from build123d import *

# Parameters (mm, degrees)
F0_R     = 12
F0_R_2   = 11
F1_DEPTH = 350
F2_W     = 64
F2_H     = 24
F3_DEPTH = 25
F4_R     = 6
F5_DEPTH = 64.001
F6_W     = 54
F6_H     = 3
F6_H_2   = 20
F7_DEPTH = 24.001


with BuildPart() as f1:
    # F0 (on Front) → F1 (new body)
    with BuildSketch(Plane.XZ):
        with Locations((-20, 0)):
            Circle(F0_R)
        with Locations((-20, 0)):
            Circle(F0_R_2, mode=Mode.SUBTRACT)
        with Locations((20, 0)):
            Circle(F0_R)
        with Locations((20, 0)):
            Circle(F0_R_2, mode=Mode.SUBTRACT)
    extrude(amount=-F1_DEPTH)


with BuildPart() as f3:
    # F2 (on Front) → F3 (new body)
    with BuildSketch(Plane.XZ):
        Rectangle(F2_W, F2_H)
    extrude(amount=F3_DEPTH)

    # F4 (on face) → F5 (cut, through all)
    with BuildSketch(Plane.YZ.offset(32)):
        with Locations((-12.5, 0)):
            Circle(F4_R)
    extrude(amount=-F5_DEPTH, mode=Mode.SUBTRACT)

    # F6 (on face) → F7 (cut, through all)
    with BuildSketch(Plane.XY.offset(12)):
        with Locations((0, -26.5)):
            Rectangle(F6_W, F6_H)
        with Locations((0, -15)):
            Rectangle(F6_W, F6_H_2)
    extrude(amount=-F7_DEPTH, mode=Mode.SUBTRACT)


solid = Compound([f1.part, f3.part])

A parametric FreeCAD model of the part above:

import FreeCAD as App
import Part
import Sketcher

V = App.Vector
Q = App.Units.Quantity

doc = App.newDocument("Part")
body = doc.addObject("PartDesign::Body", "Body")
body.AllowCompound = True

# Sketch on XZ plane
sketch1 = body.newObject("Sketcher::SketchObject", "Sketch")
sketch1.AttachmentSupport = (doc.getObject("XZ_Plane"), [""])
sketch1.MapMode = "FlatFace"
sketch1.addGeometry(Part.Circle(V(-20, 0, 0), V(0, 0, 1), 12), False)
sketch1.addGeometry(Part.Circle(V(-20, 0, 0), V(0, 0, 1), 11), False)
sketch1.addGeometry(Part.Circle(V(20, 0, 0), V(0, 0, 1), 12), False)
sketch1.addGeometry(Part.Circle(V(20, 0, 0), V(0, 0, 1), 11), False)
sketch1.addConstraint(Sketcher.Constraint("Coincident", 1, 3, 0, 3))
sketch1.addConstraint(Sketcher.Constraint("Coincident", 3, 3, 2, 3))
sketch1.addConstraint(Sketcher.Constraint("Equal", 0, 2))
sketch1.addConstraint(Sketcher.Constraint("Equal", 1, 3))
sketch1.addConstraint(Sketcher.Constraint("Symmetric", 0, 3, 2, 3, -1, 1))
sketch1.addConstraint(Sketcher.Constraint("PointOnObject", 0, 3, -1))
sketch1.addConstraint(Sketcher.Constraint("Diameter", 0, Q("24 mm")))
sketch1.addConstraint(Sketcher.Constraint("Diameter", 1, Q("22 mm")))
sketch1.addConstraint(Sketcher.Constraint("DistanceX", 0, 3, -1, 1, Q("20 mm")))
pad1 = body.newObject("PartDesign::Pad", "Pad")
pad1.Profile = sketch1
pad1.Length = 350
pad1.Reversed = True
body2 = doc.addObject("PartDesign::Body", "Body001")

# Sketch on XZ plane
sketch2 = body2.newObject("Sketcher::SketchObject", "Sketch001")
sketch2.AttachmentSupport = (doc.getObject("XZ_Plane001"), [""])
sketch2.MapMode = "FlatFace"
sketch2.addGeometry(Part.LineSegment(V(-32, 12, 0), V(-32, -12, 0)), False)
sketch2.addGeometry(Part.LineSegment(V(-32, -12, 0), V(32, -12, 0)), False)
sketch2.addGeometry(Part.LineSegment(V(32, -12, 0), V(32, 12, 0)), False)
sketch2.addGeometry(Part.LineSegment(V(32, 12, 0), V(-32, 12, 0)), False)
sketch2.addConstraint(Sketcher.Constraint("Coincident", 0, 2, 1, 1))
sketch2.addConstraint(Sketcher.Constraint("Coincident", 1, 2, 2, 1))
sketch2.addConstraint(Sketcher.Constraint("Coincident", 2, 2, 3, 1))
sketch2.addConstraint(Sketcher.Constraint("Coincident", 3, 2, 0, 1))
sketch2.addConstraint(Sketcher.Constraint("Vertical", 0))
sketch2.addConstraint(Sketcher.Constraint("Horizontal", 1))
sketch2.addConstraint(Sketcher.Constraint("Vertical", 2))
sketch2.addConstraint(Sketcher.Constraint("Horizontal", 3))
sketch2.addConstraint(Sketcher.Constraint("Symmetric", 0, 2, 2, 2, -1, 1))
sketch2.addConstraint(Sketcher.Constraint("DistanceX", 1, 1, 1, 2, Q("64 mm")))
sketch2.addConstraint(Sketcher.Constraint("DistanceY", 0, 2, 0, 1, Q("24 mm")))
pad2 = body2.newObject("PartDesign::Pad", "Pad001")
pad2.Profile = sketch2
pad2.Length = 25

# Sketch on YZ plane
sketch3 = body2.newObject("Sketcher::SketchObject", "Sketch002")
sketch3.AttachmentSupport = (doc.getObject("YZ_Plane001"), [""])
sketch3.MapMode = "FlatFace"
sketch3.AttachmentOffset = App.Placement(V(0, 0, 32), App.Rotation())
sketch3.addGeometry(Part.Circle(V(-12, 0, 0), V(0, 0, 1), 6), False)
sketch3.addConstraint(Sketcher.Constraint("PointOnObject", 0, 3, -1))
sketch3.addConstraint(Sketcher.Constraint("Diameter", 0, Q("12 mm")))
sketch3.addConstraint(Sketcher.Constraint("DistanceX", 0, 3, -1, 1, Q("12.5 mm")))
pocket1 = body2.newObject("PartDesign::Pocket", "Pocket")
pocket1.Profile = sketch3
pocket1.Type = "ThroughAll"

# Sketch on XY plane
sketch4 = body2.newObject("Sketcher::SketchObject", "Sketch003")
sketch4.AttachmentSupport = (doc.getObject("XY_Plane001"), [""])
sketch4.MapMode = "FlatFace"
sketch4.AttachmentOffset = App.Placement(V(0, 0, 12), App.Rotation())
sketch4.addGeometry(Part.LineSegment(V(-27, -28, 0), V(27, -28, 0)), False)
sketch4.addGeometry(Part.LineSegment(V(27, -28, 0), V(27, -5, 0)), False)
sketch4.addGeometry(Part.LineSegment(V(27, -5, 0), V(-27, -5, 0)), False)
sketch4.addGeometry(Part.LineSegment(V(-27, -5, 0), V(-27, -28, 0)), False)
sketch4.addConstraint(Sketcher.Constraint("Coincident", 0, 2, 1, 1))
sketch4.addConstraint(Sketcher.Constraint("Coincident", 1, 2, 2, 1))
sketch4.addConstraint(Sketcher.Constraint("Coincident", 2, 2, 3, 1))
sketch4.addConstraint(Sketcher.Constraint("Coincident", 3, 2, 0, 1))
sketch4.addConstraint(Sketcher.Constraint("Horizontal", 0))
sketch4.addConstraint(Sketcher.Constraint("Vertical", 1))
sketch4.addConstraint(Sketcher.Constraint("Horizontal", 2))
sketch4.addConstraint(Sketcher.Constraint("Vertical", 3))
sketch4.addConstraint(Sketcher.Constraint("DistanceX", 0, 1, 0, 2, Q("54 mm")))
sketch4.addConstraint(Sketcher.Constraint("DistanceY", 1, 1, 1, 2, Q("23 mm")))
sketch4.addConstraint(Sketcher.Constraint("DistanceX", -1, 1, 0, 2, Q("27 mm")))
sketch4.addConstraint(Sketcher.Constraint("DistanceY", 0, 2, -1, 1, Q("28 mm")))
pocket2 = body2.newObject("PartDesign::Pocket", "Pocket001")
pocket2.Profile = sketch4
pocket2.Type = "ThroughAll"

doc.recompute()
